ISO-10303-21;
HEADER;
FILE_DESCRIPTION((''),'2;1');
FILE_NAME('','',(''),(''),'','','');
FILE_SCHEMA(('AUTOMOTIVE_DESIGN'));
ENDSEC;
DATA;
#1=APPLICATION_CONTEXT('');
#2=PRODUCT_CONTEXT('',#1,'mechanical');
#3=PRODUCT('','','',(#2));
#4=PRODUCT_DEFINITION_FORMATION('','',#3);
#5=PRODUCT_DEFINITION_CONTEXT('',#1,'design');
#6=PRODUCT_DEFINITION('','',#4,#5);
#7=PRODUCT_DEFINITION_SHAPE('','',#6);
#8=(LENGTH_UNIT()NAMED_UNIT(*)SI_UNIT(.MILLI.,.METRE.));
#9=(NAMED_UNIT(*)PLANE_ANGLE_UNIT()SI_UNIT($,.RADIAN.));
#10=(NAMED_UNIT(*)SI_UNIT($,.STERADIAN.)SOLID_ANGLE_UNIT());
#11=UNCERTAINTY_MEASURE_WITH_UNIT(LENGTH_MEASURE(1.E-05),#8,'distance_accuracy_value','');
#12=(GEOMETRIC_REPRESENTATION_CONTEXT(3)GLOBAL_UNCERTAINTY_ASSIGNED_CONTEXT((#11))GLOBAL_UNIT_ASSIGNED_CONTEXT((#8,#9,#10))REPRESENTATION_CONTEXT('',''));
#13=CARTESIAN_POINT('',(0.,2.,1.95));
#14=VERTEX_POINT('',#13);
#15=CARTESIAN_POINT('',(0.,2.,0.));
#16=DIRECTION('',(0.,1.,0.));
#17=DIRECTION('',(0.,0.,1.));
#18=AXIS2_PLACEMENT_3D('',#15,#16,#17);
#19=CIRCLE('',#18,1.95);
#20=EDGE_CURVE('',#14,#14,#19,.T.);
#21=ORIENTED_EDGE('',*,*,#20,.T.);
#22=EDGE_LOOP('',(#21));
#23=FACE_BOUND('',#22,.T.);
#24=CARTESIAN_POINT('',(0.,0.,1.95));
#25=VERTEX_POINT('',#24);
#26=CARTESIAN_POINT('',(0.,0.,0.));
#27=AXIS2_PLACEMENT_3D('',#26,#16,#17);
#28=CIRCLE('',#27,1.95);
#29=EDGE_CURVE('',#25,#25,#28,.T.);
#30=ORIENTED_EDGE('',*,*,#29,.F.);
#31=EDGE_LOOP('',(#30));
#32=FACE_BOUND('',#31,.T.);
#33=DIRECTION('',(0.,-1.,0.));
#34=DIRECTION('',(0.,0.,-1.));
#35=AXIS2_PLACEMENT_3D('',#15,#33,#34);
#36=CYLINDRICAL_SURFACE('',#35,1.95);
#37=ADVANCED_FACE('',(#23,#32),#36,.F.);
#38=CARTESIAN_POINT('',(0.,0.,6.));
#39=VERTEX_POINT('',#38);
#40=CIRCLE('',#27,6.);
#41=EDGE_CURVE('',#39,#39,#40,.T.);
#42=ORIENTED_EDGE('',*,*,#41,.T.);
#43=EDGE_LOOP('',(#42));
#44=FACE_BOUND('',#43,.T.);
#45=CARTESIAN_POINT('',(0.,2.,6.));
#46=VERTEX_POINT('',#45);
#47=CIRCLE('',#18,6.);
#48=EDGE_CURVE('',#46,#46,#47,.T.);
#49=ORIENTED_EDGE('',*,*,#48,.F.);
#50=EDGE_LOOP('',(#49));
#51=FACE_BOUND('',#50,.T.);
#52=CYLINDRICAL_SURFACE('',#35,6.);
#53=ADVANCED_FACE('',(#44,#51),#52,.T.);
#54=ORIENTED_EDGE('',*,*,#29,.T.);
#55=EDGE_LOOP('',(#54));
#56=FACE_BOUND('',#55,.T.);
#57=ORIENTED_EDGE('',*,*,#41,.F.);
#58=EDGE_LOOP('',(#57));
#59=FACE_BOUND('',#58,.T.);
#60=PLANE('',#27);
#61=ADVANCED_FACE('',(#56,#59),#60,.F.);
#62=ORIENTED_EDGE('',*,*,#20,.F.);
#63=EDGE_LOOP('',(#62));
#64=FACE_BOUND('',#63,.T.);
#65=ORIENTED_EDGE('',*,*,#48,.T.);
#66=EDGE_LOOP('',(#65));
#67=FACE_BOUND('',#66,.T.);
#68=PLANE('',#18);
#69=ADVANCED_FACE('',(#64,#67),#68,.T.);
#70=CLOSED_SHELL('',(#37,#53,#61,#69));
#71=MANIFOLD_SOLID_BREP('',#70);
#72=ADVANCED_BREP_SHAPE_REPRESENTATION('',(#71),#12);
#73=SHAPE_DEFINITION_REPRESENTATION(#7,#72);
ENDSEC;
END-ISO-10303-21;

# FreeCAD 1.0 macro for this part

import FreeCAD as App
import Part
import Sketcher
from FreeCAD import Vector

doc = App.newDocument("Part")
params = doc.addObject("Spreadsheet::Sheet", "Params")
for row, (alias, value) in enumerate([
    ("sketch1_diameter", "12 mm"),
    ("sketch1_diameter2", "3.9 mm"),
    ("pad1_length", "2 mm"),
], start=1):
    params.set(f"A{row}", alias)
    params.set(f"B{row}", "=" + value)
    params.setAlias(f"B{row}", alias)

body = doc.addObject("PartDesign::Body", "Body")

# Sketch on XZ plane
sketch1 = doc.addObject("Sketcher::SketchObject", "Sketch")
body.addObject(sketch1)
sketch1.AttachmentSupport = (doc.XZ_Plane, [""])
sketch1.MapMode = "FlatFace"
sketch1.addGeometry([
    Part.Circle(Vector(0, 0, 0), Vector(0, 0, 1), 6),
    Part.Circle(Vector(0, 0, 0), Vector(0, 0, 1), 1.9),
], False)
sketch1.addConstraint([
    Sketcher.Constraint("Coincident", 0, 3, -1, 1),
    Sketcher.Constraint("Coincident", 1, 3, -1, 1),
    Sketcher.Constraint("Diameter", 0, 12.0),
    Sketcher.Constraint("Diameter", 1, 3.9),
])
sketch1.setExpression("Constraints[2]", "Params.sketch1_diameter")
sketch1.setExpression("Constraints[3]", "Params.sketch1_diameter2")
pad1 = doc.addObject("PartDesign::Pad", "Pad")
body.addObject(pad1)
pad1.Profile = sketch1
pad1.setExpression("Length", "Params.pad1_length")
pad1.Reversed = True

doc.recompute()
